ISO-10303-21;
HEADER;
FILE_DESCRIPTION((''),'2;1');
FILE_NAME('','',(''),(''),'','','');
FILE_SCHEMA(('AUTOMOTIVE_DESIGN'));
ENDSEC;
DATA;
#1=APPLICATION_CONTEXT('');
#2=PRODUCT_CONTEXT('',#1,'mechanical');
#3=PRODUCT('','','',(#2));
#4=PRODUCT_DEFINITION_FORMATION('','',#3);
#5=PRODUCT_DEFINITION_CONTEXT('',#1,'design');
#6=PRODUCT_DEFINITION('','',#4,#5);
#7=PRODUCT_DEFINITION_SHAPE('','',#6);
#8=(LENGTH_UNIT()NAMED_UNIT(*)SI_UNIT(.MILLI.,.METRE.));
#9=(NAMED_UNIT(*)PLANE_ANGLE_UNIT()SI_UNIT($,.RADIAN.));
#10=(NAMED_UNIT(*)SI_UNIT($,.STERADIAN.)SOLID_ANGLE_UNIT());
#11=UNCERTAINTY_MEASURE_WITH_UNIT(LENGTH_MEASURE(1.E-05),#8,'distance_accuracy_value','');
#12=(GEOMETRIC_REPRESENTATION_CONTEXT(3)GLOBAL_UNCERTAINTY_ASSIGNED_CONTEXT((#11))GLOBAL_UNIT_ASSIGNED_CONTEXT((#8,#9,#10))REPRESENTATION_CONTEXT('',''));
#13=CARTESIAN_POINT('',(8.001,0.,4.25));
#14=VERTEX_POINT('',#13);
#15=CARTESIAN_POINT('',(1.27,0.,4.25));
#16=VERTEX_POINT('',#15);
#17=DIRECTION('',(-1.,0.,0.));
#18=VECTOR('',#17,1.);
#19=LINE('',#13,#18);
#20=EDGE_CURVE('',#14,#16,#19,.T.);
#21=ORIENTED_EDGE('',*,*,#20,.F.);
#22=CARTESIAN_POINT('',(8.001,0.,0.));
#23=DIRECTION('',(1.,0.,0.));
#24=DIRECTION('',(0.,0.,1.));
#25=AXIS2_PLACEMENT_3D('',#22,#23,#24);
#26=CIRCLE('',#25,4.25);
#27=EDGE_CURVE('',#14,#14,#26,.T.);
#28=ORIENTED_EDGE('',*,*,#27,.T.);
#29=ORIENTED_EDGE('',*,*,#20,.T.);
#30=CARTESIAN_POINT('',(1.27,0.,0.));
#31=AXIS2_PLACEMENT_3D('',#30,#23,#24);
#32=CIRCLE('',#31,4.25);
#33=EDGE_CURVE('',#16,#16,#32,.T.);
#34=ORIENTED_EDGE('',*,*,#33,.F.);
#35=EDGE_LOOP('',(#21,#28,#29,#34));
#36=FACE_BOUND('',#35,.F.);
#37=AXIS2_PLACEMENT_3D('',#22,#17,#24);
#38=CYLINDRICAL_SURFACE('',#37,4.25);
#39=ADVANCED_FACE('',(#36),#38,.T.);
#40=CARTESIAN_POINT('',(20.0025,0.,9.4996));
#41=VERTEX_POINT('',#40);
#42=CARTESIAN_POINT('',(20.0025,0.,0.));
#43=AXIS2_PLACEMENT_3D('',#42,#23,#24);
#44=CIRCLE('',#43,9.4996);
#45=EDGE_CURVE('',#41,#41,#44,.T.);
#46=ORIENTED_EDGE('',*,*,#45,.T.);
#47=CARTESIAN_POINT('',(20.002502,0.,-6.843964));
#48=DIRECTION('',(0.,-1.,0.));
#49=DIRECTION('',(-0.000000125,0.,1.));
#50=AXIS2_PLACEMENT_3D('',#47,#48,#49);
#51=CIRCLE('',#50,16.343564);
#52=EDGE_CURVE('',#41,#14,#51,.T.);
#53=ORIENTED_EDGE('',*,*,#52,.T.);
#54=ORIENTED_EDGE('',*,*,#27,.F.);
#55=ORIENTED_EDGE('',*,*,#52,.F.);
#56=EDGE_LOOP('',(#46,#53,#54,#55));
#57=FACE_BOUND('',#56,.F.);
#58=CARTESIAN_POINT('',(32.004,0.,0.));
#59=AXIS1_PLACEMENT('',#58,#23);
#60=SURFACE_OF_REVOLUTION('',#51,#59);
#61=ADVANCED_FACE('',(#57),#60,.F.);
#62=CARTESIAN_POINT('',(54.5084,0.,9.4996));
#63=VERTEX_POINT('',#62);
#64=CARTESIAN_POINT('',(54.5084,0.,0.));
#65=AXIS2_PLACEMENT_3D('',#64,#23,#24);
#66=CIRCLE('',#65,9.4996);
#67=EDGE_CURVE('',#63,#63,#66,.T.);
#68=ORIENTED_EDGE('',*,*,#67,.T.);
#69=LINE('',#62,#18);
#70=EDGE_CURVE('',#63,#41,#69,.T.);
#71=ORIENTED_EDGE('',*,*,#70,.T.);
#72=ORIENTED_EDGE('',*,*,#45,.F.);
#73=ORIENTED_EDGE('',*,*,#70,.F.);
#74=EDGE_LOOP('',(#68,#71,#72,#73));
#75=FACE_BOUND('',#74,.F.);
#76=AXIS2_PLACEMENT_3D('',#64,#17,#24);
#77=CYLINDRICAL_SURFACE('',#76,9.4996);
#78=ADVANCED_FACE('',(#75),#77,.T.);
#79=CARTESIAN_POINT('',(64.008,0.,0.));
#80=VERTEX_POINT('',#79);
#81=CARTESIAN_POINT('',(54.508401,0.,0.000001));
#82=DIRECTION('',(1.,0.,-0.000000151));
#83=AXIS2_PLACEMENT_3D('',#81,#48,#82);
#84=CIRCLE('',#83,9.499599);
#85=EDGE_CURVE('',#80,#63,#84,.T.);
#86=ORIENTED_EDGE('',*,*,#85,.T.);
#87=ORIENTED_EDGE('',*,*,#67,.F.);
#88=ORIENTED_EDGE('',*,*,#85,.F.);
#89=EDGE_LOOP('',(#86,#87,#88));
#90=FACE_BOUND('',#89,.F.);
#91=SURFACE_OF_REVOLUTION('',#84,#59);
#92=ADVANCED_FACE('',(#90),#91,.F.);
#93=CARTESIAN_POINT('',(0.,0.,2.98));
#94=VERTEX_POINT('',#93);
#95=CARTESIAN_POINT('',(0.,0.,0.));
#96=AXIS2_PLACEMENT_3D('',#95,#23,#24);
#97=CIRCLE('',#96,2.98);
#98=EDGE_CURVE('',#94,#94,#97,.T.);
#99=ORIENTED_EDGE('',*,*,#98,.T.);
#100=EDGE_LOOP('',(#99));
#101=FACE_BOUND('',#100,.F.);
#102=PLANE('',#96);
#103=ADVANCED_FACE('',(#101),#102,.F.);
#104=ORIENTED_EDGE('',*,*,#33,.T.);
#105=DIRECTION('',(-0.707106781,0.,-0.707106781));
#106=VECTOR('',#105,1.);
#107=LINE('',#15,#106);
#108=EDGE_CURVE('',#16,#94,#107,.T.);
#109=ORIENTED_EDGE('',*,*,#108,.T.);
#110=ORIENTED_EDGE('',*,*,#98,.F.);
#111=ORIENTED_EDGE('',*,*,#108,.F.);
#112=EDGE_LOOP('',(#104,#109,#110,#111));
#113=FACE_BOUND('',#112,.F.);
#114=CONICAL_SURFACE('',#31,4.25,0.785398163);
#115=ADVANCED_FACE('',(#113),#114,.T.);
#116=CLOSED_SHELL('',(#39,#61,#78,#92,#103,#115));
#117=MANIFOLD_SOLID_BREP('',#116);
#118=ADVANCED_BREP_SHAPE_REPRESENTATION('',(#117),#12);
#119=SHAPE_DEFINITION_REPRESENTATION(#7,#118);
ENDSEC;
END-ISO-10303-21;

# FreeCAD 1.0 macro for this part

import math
import FreeCAD as App
import Part
import Sketcher
Q = App.Units.Quantity


def edges_at(feature, points):
    """Names of the edges that pass closest to the given points."""
    edges = feature.Shape.Edges
    near = lambda p: min(range(len(edges)), key=lambda i: edges[i].distToShape(Part.Vertex(*p))[0])
    return sorted({f"Edge{near(p) + 1}" for p in points})

doc = App.newDocument("Part")
body = doc.addObject("PartDesign::Body", "Body")

# Sketch on XZ plane
sketch1 = body.newObject("Sketcher::SketchObject", "Sketch")
sketch1.AttachmentSupport = (doc.getObject("XZ_Plane"), [""])
sketch1.MapMode = "FlatFace"
sketch1.addGeometry(Part.LineSegment(App.Vector(0, 0, 0), App.Vector(64, 0, 0)), False)
sketch1.addGeometry(Part.ArcOfCircle(Part.Circle(App.Vector(54.5, 0, 0), App.Vector(0, 0, 1), 9.5), math.radians(0), math.radians(90)), False)
sketch1.addGeometry(Part.LineSegment(App.Vector(54.5, 9.5, 0), App.Vector(20, 9.5, 0)), False)
sketch1.addGeometry(Part.ArcOfCircle(Part.Circle(App.Vector(20, -6.8, 0), App.Vector(0, 0, 1), 16.3), math.radians(90), math.radians(137)), False)
sketch1.addGeometry(Part.LineSegment(App.Vector(8, 4.2, 0), App.Vector(0, 4.2, 0)), False)
sketch1.addGeometry(Part.LineSegment(App.Vector(0, 4.2, 0), App.Vector(0, 0, 0)), False)
sketch1.addConstraint(Sketcher.Constraint("Coincident", 0, 2, 1, 1))
sketch1.addConstraint(Sketcher.Constraint("Tangent", 1, 2, 2, 1))
sketch1.addConstraint(Sketcher.Constraint("Tangent", 2, 2, 3, 1))
sketch1.addConstraint(Sketcher.Constraint("Coincident", 3, 2, 4, 1))
sketch1.addConstraint(Sketcher.Constraint("Coincident", 4, 2, 5, 1))
sketch1.addConstraint(Sketcher.Constraint("Coincident", 5, 2, 0, 1))
sketch1.addConstraint(Sketcher.Constraint("Horizontal", 0))
sketch1.addConstraint(Sketcher.Constraint("Horizontal", 2))
sketch1.addConstraint(Sketcher.Constraint("Horizontal", 4))
sketch1.addConstraint(Sketcher.Constraint("Vertical", 5))
sketch1.addConstraint(Sketcher.Constraint("Coincident", 5, 2, -1, 1))
sketch1.addConstraint(Sketcher.Constraint("PointOnObject", 1, 3, -1))
sketch1.addConstraint(Sketcher.Constraint("Radius", 1, Q("0.3739999 in")))
sketch1.addConstraint(Sketcher.Constraint("DistanceX", 0, 1, 0, 2, Q("2.52 in")))
sketch1.addConstraint(Sketcher.Constraint("DistanceX", 4, 2, 4, 1, Q("0.315 in")))
sketch1.addConstraint(Sketcher.Constraint("DistanceX", 2, 2, 2, 1, Q("1.3585 in")))
sketch1.addConstraint(Sketcher.Constraint("DistanceY", 5, 2, 5, 1, 4.25))
revolution = body.newObject("PartDesign::Revolution", "Revolution")
revolution.Profile = sketch1
revolution.ReferenceAxis = (sketch1, ["H_Axis"])
revolution.Angle = 360
doc.recompute()

chamfer = body.newObject("PartDesign::Chamfer", "Chamfer")
chamfer.Base = (revolution, edges_at(revolution, [(0, 0, -4.25)]))
chamfer.Size = Q("0.05 in")

doc.recompute()
